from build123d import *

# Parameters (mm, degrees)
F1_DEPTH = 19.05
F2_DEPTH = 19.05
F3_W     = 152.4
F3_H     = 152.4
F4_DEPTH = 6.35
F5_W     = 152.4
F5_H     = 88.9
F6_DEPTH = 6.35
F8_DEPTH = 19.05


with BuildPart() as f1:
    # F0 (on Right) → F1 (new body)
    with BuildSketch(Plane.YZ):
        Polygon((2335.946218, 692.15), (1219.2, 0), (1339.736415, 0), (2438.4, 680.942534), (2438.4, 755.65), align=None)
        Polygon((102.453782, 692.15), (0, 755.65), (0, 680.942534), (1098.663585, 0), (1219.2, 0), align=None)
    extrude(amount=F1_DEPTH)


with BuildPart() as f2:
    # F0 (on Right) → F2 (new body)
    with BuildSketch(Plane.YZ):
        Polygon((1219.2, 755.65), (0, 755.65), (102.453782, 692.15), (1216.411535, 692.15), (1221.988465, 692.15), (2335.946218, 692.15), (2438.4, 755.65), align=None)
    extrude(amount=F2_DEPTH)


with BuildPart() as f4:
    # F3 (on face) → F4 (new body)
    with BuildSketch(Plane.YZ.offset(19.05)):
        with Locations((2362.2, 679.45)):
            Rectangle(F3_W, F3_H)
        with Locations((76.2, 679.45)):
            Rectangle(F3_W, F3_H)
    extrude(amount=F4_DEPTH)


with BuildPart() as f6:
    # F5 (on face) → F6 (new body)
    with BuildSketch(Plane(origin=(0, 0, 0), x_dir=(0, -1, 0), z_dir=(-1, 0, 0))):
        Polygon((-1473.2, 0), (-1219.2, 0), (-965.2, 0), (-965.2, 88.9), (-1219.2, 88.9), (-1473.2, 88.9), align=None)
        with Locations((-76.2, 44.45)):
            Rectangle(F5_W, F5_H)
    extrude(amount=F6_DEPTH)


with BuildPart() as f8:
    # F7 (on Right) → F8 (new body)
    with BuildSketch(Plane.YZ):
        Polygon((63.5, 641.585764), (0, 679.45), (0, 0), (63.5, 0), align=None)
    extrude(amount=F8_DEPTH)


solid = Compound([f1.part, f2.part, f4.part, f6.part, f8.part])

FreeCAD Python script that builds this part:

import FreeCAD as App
import Part
import Sketcher
from FreeCAD import Vector
Q = App.Units.Quantity


def add_polygon(sketch, points):
    """Adds a closed chain of lines whose ends are joined by coincident constraints."""
    first, n = sketch.GeometryCount, len(points)
    for a, b in zip(points, points[1:] + points[:1]):
        sketch.addGeometry(Part.LineSegment(App.Vector(*a, 0), App.Vector(*b, 0)), False)
    for i in range(n):
        sketch.addConstraint(Sketcher.Constraint("Coincident", first + i, 2, first + (i + 1) % n, 1))

doc = App.newDocument("Part")
body = doc.addObject("PartDesign::Body", "Body")
body.AllowCompound = True

sketch1 = doc.addObject("Sketcher::SketchObject", "Sketch")
body.addObject(sketch1)
sketch1.AttachmentSupport = (doc.YZ_Plane, [""])
sketch1.MapMode = "FlatFace"
add_polygon(sketch1, [(2336, 692), (1219, 0), (1340, 0), (2438, 681), (2438, 756)])
add_polygon(sketch1, [(102, 692), (0, 756), (0, 681), (1099, 0), (1219, 0)])
sketch1.addConstraint([
    Sketcher.Constraint("Horizontal", 1),
    Sketcher.Constraint("Vertical", 3),
    Sketcher.Constraint("Vertical", 6),
    Sketcher.Constraint("Horizontal", 8),
    Sketcher.Constraint("Coincident", 8, 2, 0, 2),
    Sketcher.Constraint("PointOnObject", 0, 2, -1),
    Sketcher.Constraint("PointOnObject", 5, 2, -2),
    Sketcher.Constraint("Parallel", 0, 2),
    Sketcher.Constraint("Parallel", 2, 4),
    Sketcher.Constraint("Parallel", 5, 7),
    Sketcher.Constraint("Parallel", 7, 9),
    Sketcher.Constraint("Horizontal", 3, 2, 5, 2),
    Sketcher.Constraint("Horizontal", 2, 2, 6, 2),
    Sketcher.Constraint("Horizontal", 4, 2, 9, 2),
    Sketcher.Constraint("Equal", 1, 8),
    Sketcher.Constraint("DistanceX", -1, 1, 0, 2, Q("48 in")),
    Sketcher.Constraint("DistanceY", 4, 2, 3, 2, Q("2.5 in")),
    Sketcher.Constraint("DistanceY", -1, 1, 3, 2, Q("29.75 in")),
    Sketcher.Constraint("DistanceX", 1, 1, 1, 2, 120.536415),
])
pad1 = doc.addObject("PartDesign::Pad", "Pad")
body.addObject(pad1)
pad1.Profile = sketch1
pad1.Length = Q("0.75 in")
body2 = doc.addObject("PartDesign::Body", "Body001")

sketch2 = doc.addObject("Sketcher::SketchObject", "Sketch001")
body2.addObject(sketch2)
sketch2.AttachmentSupport = (doc.getObject("YZ_Plane001"), [""])
sketch2.MapMode = "FlatFace"
add_polygon(sketch2, [(0, 756), (102, 692), (2336, 692), (2438, 756)])
sketch2.addConstraint([
    Sketcher.Constraint("Horizontal", 1),
    Sketcher.Constraint("Horizontal", 3),
    Sketcher.Constraint("PointOnObject", 3, 2, -2),
    Sketcher.Constraint("Equal", 0, 2),
    Sketcher.Constraint("DistanceX", 3, 2, 3, 1, Q("96 in")),
    Sketcher.Constraint("DistanceY", 1, 2, 2, 2, Q("2.5 in")),
    Sketcher.Constraint("DistanceY", -1, 1, 0, 2, Q("27.25 in")),
    Sketcher.Constraint("DistanceX", 1, 1, 1, 2, 2233.492436),
])
pad2 = doc.addObject("PartDesign::Pad", "Pad001")
body2.addObject(pad2)
pad2.Profile = sketch2
pad2.Length = Q("0.75 in")
body3 = doc.addObject("PartDesign::Body", "Body002")
body3.AllowCompound = True

sketch3 = doc.addObject("Sketcher::SketchObject", "Sketch002")
body3.addObject(sketch3)
sketch3.AttachmentSupport = (doc.getObject("YZ_Plane002"), [""])
sketch3.MapMode = "FlatFace"
sketch3.AttachmentOffset = App.Placement(Vector(0, 0, 0.75 * 25.4), App.Rotation())
add_polygon(sketch3, [(2286, 756), (2286, 603), (2438, 603), (2438, 756)])
add_polygon(sketch3, [(0, 756), (0, 603), (152, 603), (152, 756)])
sketch3.addConstraint([
    Sketcher.Constraint("Vertical", 0),
    Sketcher.Constraint("Horizontal", 1),
    Sketcher.Constraint("Vertical", 2),
    Sketcher.Constraint("Horizontal", 3),
    Sketcher.Constraint("Vertical", 4),
    Sketcher.Constraint("Horizontal", 5),
    Sketcher.Constraint("Vertical", 6),
    Sketcher.Constraint("Horizontal", 7),
    Sketcher.Constraint("PointOnObject", 4, 2, -2),
    Sketcher.Constraint("Horizontal", 1, 2, 4, 2),
    Sketcher.Constraint("Horizontal", 3, 2, 6, 2),
    Sketcher.Constraint("Equal", 3, 5),
    Sketcher.Constraint("Equal", 7, 0),
    Sketcher.Constraint("DistanceX", 1, 1, 1, 2, Q("6 in")),
    Sketcher.Constraint("DistanceX", -1, 1, 0, 2, Q("90 in")),
    Sketcher.Constraint("DistanceY", -1, 1, 0, 2, Q("23.75 in")),
])
pad3 = doc.addObject("PartDesign::Pad", "Pad002")
body3.addObject(pad3)
pad3.Profile = sketch3
pad3.Length = Q("0.25 in")
body4 = doc.addObject("PartDesign::Body", "Body003")
body4.AllowCompound = True

sketch4 = doc.addObject("Sketcher::SketchObject", "Sketch003")
body4.addObject(sketch4)
sketch4.AttachmentSupport = (doc.getObject("YZ_Plane003"), [""])
sketch4.MapMode = "FlatFace"
add_polygon(sketch4, [(1473, 0), (965, 0), (965, 89), (1473, 89)])
add_polygon(sketch4, [(152, 89), (152, 0), (0, 0), (0, 89)])
sketch4.addConstraint([
    Sketcher.Constraint("Horizontal", 0),
    Sketcher.Constraint("Vertical", 1),
    Sketcher.Constraint("Horizontal", 2),
    Sketcher.Constraint("Vertical", 3),
    Sketcher.Constraint("Vertical", 4),
    Sketcher.Constraint("Horizontal", 5),
    Sketcher.Constraint("Vertical", 6),
    Sketcher.Constraint("Horizontal", 7),
    Sketcher.Constraint("Coincident", 5, 2, -1, 1),
    Sketcher.Constraint("PointOnObject", 0, 2, -1),
    Sketcher.Constraint("Horizontal", 2, 2, 6, 2),
    Sketcher.Constraint("DistanceX", 0, 2, 0, 1, Q("20 in")),
    Sketcher.Constraint("DistanceX", 5, 2, 5, 1, Q("6 in")),
    Sketcher.Constraint("DistanceY", 1, 1, 1, 2, Q("3.5 in")),
    Sketcher.Constraint("DistanceX", -1, 1, 0, 2, Q("38 in")),
])
pad4 = doc.addObject("PartDesign::Pad", "Pad003")
body4.addObject(pad4)
pad4.Profile = sketch4
pad4.Length = Q("0.25 in")
pad4.Reversed = True
body5 = doc.addObject("PartDesign::Body", "Body004")

sketch5 = doc.addObject("Sketcher::SketchObject", "Sketch004")
body5.addObject(sketch5)
sketch5.AttachmentSupport = (doc.getObject("YZ_Plane004"), [""])
sketch5.MapMode = "FlatFace"
add_polygon(sketch5, [(64, 642), (0, 679), (0, 0), (64, 0)])
sketch5.addConstraint([
    Sketcher.Constraint("Vertical", 1),
    Sketcher.Constraint("Horizontal", 2),
    Sketcher.Constraint("Vertical", 3),
    Sketcher.Constraint("Coincident", 1, 2, -1, 1),
    Sketcher.Constraint("DistanceX", 2, 1, 2, 2, Q("2.5 in")),
    Sketcher.Constraint("DistanceY", 1, 2, 1, 1, Q("26.75 in")),
    Sketcher.Constraint("DistanceY", 3, 1, 3, 2, 641.585764),
])
pad5 = doc.addObject("PartDesign::Pad", "Pad004")
body5.addObject(pad5)
pad5.Profile = sketch5
pad5.Length = Q("0.75 in")

doc.recompute()
